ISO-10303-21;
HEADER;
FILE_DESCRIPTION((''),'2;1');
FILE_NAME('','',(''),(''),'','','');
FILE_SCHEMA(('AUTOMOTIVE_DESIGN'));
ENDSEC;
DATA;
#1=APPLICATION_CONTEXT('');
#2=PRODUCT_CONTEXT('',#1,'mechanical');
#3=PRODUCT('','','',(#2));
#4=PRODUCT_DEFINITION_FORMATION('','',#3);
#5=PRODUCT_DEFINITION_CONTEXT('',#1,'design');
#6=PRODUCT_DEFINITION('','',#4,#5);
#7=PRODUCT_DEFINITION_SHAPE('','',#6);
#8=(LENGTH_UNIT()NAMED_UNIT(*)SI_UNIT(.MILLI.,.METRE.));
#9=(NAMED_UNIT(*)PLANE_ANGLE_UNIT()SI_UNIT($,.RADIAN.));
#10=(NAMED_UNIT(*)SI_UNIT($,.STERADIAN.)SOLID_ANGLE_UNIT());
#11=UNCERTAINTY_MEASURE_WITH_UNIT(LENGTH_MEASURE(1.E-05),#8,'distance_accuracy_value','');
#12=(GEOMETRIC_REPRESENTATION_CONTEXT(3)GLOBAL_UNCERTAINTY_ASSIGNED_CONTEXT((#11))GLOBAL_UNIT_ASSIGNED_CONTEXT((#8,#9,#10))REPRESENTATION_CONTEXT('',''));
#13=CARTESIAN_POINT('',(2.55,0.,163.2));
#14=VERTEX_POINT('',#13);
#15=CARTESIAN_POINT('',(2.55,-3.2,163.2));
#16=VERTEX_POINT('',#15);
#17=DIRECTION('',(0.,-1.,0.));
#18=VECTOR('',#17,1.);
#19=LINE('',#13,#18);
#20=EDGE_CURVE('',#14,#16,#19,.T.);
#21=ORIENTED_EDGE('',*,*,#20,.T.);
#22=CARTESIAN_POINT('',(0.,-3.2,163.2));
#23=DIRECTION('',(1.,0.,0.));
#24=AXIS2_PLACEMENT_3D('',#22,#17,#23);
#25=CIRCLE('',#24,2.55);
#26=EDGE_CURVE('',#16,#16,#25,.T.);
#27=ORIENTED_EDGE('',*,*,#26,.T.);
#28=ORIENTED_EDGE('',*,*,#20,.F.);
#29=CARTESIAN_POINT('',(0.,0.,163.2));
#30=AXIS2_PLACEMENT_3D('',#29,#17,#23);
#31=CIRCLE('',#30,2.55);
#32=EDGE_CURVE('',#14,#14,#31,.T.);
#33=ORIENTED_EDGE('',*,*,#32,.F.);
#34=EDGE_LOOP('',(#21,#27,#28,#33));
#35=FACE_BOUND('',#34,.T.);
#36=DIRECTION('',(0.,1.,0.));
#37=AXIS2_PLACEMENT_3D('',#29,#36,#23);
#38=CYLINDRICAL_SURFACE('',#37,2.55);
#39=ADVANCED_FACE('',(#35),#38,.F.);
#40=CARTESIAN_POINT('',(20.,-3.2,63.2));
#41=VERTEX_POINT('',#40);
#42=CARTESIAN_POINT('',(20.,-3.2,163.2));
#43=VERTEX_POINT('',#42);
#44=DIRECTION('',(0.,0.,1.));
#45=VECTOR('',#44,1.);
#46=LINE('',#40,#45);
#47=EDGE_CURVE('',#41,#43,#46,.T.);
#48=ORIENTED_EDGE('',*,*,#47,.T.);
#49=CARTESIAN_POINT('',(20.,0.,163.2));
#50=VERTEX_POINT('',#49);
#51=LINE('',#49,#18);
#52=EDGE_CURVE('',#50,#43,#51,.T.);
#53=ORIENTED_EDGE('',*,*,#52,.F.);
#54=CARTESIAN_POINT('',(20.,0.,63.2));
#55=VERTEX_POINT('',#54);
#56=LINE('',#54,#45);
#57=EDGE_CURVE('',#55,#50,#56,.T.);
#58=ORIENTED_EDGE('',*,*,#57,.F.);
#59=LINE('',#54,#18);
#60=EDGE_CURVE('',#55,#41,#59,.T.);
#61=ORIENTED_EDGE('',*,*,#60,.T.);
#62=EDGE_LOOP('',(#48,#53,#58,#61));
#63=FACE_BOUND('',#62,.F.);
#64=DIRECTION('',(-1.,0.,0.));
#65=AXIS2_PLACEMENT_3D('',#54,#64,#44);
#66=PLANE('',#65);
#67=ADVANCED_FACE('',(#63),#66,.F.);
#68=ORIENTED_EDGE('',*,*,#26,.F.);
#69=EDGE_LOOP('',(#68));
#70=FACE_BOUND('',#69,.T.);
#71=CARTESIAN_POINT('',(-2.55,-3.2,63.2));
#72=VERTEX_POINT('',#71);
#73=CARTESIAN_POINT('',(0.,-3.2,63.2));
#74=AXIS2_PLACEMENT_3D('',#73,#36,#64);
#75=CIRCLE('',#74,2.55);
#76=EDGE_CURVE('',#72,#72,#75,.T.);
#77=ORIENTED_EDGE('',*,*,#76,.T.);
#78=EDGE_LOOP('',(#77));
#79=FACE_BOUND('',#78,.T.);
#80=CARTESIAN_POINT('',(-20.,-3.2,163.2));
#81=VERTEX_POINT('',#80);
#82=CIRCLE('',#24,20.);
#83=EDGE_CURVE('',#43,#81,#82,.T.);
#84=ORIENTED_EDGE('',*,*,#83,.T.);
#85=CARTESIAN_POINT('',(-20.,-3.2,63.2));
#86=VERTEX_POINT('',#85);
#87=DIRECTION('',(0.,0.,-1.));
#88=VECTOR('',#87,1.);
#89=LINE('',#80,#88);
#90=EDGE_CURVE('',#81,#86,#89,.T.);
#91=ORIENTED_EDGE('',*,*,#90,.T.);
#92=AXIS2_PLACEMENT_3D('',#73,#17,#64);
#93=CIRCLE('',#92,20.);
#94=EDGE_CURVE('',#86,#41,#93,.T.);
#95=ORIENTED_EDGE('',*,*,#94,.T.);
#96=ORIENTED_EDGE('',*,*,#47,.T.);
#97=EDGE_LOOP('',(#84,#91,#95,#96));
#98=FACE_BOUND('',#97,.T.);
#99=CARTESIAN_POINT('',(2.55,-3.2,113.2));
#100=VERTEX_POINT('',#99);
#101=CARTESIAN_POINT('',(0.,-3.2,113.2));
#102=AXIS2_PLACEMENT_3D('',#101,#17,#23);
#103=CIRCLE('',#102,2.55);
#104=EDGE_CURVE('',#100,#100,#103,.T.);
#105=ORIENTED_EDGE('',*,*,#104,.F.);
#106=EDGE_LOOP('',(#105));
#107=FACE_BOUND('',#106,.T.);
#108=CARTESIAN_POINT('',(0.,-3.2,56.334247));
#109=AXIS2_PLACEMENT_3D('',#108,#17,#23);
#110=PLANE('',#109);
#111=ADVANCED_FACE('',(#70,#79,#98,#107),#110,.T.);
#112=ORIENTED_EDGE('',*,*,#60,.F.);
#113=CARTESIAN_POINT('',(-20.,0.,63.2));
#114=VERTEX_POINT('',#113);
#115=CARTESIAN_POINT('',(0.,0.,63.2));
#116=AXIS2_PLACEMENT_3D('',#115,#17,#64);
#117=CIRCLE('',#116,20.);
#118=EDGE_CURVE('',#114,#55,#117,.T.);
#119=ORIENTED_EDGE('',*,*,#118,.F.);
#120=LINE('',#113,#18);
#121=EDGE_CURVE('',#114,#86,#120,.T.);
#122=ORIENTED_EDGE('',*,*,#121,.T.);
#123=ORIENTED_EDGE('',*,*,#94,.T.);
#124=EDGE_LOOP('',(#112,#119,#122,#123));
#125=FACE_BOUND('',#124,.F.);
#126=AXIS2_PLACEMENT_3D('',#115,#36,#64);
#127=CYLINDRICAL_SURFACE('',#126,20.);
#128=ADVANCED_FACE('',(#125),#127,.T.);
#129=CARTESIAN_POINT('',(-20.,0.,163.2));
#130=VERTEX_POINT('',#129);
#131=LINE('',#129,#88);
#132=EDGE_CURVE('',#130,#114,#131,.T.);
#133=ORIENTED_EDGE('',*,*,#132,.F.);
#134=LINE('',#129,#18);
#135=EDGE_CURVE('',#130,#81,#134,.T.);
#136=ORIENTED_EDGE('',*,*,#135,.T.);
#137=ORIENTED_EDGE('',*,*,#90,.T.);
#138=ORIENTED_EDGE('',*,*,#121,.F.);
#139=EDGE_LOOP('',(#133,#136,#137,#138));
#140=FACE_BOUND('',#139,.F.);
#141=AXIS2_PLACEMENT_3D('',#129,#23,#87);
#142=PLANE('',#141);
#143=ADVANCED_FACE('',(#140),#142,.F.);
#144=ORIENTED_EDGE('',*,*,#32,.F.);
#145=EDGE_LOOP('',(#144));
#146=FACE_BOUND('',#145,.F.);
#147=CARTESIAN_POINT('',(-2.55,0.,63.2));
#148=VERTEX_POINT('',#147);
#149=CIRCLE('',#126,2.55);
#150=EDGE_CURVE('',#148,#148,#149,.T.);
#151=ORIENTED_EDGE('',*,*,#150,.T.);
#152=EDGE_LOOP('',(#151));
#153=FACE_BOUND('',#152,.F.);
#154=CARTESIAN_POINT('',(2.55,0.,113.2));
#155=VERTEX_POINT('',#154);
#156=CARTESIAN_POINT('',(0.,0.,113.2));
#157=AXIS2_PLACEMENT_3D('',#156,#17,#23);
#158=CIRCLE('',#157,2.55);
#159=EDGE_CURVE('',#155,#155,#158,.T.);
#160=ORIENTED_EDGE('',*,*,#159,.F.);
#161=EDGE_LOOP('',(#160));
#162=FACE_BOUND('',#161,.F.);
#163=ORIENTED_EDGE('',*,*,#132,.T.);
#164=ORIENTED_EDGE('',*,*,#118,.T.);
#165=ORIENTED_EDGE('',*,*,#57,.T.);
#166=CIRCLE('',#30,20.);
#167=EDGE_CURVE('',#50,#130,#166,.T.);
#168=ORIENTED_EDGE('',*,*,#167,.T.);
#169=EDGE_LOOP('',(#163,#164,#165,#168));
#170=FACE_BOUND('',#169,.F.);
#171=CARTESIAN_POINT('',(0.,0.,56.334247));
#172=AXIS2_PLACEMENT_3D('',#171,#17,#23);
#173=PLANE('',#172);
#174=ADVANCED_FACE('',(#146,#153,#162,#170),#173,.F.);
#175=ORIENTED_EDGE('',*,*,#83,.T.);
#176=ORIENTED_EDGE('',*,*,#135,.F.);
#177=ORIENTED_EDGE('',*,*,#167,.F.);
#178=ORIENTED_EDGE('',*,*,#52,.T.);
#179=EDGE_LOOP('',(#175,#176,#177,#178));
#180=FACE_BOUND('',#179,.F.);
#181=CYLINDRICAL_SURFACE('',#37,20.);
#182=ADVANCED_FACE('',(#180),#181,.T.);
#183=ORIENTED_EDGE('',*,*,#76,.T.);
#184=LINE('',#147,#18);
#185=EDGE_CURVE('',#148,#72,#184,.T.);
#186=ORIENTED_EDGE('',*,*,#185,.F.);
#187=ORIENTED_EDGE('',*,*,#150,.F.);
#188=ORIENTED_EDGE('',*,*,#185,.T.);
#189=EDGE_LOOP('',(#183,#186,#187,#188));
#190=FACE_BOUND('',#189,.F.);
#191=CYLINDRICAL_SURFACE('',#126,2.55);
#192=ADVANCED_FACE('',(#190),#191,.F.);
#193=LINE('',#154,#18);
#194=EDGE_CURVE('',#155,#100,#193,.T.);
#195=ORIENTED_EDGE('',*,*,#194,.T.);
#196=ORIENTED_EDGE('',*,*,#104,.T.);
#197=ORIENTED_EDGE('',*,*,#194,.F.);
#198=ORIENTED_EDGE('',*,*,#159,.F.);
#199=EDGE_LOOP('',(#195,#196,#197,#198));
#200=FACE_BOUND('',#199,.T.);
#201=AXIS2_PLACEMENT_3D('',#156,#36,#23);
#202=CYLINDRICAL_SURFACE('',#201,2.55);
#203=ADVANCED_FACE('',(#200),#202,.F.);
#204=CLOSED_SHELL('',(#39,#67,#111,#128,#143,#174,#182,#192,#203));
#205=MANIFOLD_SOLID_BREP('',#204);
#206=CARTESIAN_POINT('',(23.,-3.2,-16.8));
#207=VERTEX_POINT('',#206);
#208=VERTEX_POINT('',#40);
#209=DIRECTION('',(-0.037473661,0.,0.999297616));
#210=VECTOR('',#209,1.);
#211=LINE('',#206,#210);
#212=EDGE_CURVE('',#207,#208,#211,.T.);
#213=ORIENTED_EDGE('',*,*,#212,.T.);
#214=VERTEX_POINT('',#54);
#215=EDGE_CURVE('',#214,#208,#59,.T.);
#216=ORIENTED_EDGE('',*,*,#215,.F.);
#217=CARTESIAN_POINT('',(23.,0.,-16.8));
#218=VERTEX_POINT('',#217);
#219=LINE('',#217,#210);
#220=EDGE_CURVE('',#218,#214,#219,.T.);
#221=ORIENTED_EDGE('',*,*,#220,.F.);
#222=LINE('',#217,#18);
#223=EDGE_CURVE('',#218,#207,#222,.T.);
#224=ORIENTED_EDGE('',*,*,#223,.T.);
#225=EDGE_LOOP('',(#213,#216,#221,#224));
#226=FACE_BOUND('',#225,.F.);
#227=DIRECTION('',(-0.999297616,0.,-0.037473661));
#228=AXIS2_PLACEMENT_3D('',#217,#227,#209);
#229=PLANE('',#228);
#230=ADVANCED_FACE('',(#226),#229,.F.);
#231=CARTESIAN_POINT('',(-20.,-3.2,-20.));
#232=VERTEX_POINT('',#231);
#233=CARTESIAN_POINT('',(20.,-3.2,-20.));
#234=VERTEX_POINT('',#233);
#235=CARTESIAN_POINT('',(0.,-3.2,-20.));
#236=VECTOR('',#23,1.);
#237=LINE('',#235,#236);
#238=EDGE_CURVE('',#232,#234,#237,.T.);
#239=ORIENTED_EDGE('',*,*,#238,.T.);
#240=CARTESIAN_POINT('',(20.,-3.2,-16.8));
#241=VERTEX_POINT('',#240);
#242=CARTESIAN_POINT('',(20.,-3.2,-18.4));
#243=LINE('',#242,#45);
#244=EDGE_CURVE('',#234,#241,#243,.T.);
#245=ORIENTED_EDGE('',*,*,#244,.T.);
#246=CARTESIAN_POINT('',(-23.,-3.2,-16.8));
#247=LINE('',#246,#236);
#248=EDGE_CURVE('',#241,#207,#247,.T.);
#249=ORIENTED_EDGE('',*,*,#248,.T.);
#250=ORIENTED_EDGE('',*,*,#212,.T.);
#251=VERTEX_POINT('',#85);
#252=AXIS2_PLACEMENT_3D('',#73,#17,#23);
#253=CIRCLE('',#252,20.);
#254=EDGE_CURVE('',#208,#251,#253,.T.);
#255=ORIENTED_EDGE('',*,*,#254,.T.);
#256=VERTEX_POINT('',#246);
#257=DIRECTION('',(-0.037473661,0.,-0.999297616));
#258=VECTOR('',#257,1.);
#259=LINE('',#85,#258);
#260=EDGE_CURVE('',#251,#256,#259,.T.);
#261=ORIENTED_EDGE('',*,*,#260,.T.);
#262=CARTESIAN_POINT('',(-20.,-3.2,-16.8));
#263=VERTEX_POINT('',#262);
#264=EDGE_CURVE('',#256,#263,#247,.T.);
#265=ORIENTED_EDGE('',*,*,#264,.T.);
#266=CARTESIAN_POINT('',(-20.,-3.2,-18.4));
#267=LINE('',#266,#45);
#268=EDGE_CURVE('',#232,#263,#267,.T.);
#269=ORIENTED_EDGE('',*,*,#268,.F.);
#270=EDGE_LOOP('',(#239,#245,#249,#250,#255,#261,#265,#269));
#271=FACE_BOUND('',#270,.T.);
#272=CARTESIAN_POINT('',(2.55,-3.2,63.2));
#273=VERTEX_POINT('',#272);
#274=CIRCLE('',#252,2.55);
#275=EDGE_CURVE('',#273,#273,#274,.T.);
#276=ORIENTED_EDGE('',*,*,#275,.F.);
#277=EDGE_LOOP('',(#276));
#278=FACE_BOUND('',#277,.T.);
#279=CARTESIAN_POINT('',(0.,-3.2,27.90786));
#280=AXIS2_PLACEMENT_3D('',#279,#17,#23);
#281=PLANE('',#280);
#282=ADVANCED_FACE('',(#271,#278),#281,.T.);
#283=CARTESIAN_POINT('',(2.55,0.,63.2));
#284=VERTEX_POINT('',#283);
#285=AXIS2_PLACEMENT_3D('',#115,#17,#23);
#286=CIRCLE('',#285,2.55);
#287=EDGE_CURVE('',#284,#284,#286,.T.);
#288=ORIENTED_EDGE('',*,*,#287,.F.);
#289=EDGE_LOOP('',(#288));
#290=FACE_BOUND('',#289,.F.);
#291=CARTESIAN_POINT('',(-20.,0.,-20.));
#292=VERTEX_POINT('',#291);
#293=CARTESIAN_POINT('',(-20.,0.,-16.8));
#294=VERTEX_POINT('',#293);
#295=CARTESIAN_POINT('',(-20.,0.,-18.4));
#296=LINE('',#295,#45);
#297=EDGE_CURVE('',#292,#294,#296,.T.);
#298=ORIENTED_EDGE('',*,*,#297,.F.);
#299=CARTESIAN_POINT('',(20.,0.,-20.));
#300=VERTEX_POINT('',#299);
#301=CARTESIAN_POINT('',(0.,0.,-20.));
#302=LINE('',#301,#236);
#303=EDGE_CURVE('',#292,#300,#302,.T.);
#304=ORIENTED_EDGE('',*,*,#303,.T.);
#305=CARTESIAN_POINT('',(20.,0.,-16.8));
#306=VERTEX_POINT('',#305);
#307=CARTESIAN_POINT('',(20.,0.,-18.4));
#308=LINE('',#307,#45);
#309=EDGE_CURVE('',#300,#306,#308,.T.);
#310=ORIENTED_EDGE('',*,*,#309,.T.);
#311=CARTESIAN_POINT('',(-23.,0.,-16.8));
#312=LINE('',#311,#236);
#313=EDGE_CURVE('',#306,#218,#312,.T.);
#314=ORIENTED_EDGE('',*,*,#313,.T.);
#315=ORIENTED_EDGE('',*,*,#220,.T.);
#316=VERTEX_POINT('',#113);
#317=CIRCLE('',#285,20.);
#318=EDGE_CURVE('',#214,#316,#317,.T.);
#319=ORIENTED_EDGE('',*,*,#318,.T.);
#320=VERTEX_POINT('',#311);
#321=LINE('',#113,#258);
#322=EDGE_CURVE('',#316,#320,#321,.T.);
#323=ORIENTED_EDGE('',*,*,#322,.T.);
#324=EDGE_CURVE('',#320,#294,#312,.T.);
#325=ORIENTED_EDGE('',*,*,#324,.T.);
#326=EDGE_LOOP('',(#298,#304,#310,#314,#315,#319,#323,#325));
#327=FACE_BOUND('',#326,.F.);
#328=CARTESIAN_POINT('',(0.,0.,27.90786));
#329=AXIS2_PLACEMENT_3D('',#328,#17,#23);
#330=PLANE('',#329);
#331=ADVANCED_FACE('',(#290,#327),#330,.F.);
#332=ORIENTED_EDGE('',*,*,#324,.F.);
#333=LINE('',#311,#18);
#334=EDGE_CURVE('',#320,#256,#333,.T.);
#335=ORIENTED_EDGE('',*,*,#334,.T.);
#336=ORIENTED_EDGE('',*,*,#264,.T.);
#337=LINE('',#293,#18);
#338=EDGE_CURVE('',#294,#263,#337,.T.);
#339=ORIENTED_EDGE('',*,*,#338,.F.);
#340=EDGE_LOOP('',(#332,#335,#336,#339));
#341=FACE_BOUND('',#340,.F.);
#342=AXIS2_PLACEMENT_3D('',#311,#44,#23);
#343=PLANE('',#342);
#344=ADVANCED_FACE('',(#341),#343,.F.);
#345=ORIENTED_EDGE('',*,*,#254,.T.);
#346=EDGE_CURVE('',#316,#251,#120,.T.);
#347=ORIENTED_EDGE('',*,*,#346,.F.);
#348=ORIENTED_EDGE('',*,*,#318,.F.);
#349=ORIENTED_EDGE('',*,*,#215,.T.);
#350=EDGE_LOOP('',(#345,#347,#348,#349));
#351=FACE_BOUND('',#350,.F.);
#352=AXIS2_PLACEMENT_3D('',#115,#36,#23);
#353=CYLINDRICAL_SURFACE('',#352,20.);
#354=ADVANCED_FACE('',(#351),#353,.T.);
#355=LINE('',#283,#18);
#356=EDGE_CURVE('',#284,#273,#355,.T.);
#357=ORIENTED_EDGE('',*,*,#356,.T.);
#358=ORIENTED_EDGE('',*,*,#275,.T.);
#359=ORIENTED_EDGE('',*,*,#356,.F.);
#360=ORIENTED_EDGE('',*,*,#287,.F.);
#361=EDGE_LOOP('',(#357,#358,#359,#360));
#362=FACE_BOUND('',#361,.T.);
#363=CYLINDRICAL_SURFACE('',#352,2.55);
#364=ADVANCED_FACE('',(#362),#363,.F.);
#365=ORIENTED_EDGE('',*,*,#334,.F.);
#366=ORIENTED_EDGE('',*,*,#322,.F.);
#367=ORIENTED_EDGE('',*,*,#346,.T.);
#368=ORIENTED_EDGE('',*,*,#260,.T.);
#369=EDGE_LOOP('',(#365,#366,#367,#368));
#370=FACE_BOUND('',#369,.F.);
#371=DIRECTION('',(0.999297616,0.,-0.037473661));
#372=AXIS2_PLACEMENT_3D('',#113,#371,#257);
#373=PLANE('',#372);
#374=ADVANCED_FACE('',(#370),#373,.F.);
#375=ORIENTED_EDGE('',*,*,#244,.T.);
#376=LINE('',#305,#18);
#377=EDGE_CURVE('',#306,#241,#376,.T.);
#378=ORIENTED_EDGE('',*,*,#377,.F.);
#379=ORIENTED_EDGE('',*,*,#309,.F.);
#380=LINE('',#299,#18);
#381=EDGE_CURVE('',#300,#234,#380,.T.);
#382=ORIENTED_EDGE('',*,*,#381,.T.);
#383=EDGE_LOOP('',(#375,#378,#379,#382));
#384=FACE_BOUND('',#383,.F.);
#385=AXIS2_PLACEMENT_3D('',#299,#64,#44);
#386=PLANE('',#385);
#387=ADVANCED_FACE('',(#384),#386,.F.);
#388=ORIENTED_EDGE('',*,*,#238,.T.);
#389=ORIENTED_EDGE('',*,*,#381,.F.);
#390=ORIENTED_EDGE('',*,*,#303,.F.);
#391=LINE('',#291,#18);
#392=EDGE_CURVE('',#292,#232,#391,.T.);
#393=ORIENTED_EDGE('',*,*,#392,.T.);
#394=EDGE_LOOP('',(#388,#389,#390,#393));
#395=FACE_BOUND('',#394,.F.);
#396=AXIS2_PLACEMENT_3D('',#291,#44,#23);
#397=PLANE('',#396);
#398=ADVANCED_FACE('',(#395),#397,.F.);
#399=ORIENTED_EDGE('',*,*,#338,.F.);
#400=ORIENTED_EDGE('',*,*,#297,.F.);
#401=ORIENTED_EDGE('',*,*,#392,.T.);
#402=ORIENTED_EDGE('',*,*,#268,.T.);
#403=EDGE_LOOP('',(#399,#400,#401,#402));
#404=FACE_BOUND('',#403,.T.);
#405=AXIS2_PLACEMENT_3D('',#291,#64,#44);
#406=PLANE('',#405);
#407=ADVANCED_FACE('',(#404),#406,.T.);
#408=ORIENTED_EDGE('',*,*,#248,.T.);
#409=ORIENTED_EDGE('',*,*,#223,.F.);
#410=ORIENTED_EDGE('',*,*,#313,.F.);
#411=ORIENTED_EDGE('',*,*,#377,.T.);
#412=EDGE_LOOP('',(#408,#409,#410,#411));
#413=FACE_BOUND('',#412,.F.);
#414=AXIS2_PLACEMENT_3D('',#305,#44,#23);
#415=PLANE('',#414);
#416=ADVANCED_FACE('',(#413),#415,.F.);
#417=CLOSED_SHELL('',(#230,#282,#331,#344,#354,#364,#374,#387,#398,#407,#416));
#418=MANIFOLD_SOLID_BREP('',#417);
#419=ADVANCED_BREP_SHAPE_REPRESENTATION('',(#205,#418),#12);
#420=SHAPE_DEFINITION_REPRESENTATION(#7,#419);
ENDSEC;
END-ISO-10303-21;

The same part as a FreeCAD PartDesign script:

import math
import FreeCAD as App
import Part
import Sketcher

doc = App.newDocument("Part")
params = doc.addObject("Spreadsheet::Sheet", "Params")
for row, (alias, value) in enumerate([
    ("sketch1_radius", "20 mm"),
    ("sketch1_diameter", "5.1 mm"),
    ("sketch1_width", "3 mm"),
    ("sketch1_height", "3.2 mm"),
    ("pad1_length", "3.2 mm"),
    ("sketch2_radius", "20 mm"),
    ("sketch2_diameter", "5.1 mm"),
    ("sketch2_height", "100 mm"),
    ("pad2_length", "3.2 mm"),
], start=1):
    params.set(f"A{row}", alias)
    params.set(f"B{row}", "=" + value)
    params.setAlias(f"B{row}", alias)

body = doc.addObject("PartDesign::Body", "Body")

sketch1 = body.newObject("Sketcher::SketchObject", "Sketch")
sketch1.AttachmentSupport = (doc.getObject("XZ_Plane"), [""])
sketch1.MapMode = "FlatFace"
sketch1.addGeometry([
    Part.LineSegment(App.Vector(-23, -16.8, 0), App.Vector(-20, -16.8, 0)),
    Part.LineSegment(App.Vector(-20, -16.8, 0), App.Vector(-20, -20, 0)),
    Part.LineSegment(App.Vector(-20, -20, 0), App.Vector(20, -20, 0)),
    Part.LineSegment(App.Vector(20, -20, 0), App.Vector(20, -16.8, 0)),
    Part.LineSegment(App.Vector(20, -16.8, 0), App.Vector(23, -16.8, 0)),
    Part.LineSegment(App.Vector(23, -16.8, 0), App.Vector(20, 63.2, 0)),
    Part.ArcOfCircle(Part.Circle(App.Vector(0, 63.2, 0), App.Vector(0, 0, 1), 20), math.radians(0), math.radians(180)),
    Part.LineSegment(App.Vector(-20, 63.2, 0), App.Vector(-23, -16.8, 0)),
    Part.Circle(App.Vector(0, 63.2, 0), App.Vector(0, 0, 1), 2.5),
], False)
sketch1.addConstraint([
    Sketcher.Constraint("Coincident", 0, 2, 1, 1),
    Sketcher.Constraint("Coincident", 1, 2, 2, 1),
    Sketcher.Constraint("Coincident", 2, 2, 3, 1),
    Sketcher.Constraint("Coincident", 3, 2, 4, 1),
    Sketcher.Constraint("Coincident", 4, 2, 5, 1),
    Sketcher.Constraint("Coincident", 5, 2, 6, 1),
    Sketcher.Constraint("Coincident", 6, 2, 7, 1),
    Sketcher.Constraint("Coincident", 7, 2, 0, 1),
    Sketcher.Constraint("Horizontal", 0),
    Sketcher.Constraint("Vertical", 1),
    Sketcher.Constraint("Horizontal", 2),
    Sketcher.Constraint("Vertical", 3),
    Sketcher.Constraint("Horizontal", 4),
    Sketcher.Constraint("Coincident", 8, 3, 6, 3),
    Sketcher.Constraint("Symmetric", 0, 2, 3, 2, -2),
    Sketcher.Constraint("Symmetric", 5, 2, 6, 2, -2),
    Sketcher.Constraint("Horizontal", 8, 3, 5, 2),
    Sketcher.Constraint("Vertical", 3, 2, 5, 2),
    Sketcher.Constraint("Equal", 0, 4),
    Sketcher.Constraint("Radius", 6, 20.0),
    Sketcher.Constraint("Diameter", 8, 5.1),
    Sketcher.Constraint("DistanceX", 0, 1, 0, 2, 3.0),
    Sketcher.Constraint("DistanceY", 1, 2, 1, 1, 3.2),
    Sketcher.Constraint("DistanceY", 1, 2, -1, 1, 20.0),
    Sketcher.Constraint("DistanceY", 0, 2, 6, 3, 80.0),
])
sketch1.setExpression("Constraints[19]", "Params.sketch1_radius")
sketch1.setExpression("Constraints[20]", "Params.sketch1_diameter")
sketch1.setExpression("Constraints[21]", "Params.sketch1_width")
sketch1.setExpression("Constraints[22]", "Params.sketch1_height")
pad1 = body.newObject("PartDesign::Pad", "Pad")
pad1.Profile = sketch1
pad1.setExpression("Length", "Params.pad1_length")
body2 = doc.addObject("PartDesign::Body", "Body001")

sketch2 = body2.newObject("Sketcher::SketchObject", "Sketch001")
sketch2.AttachmentSupport = (doc.getObject("XZ_Plane001"), [""])
sketch2.MapMode = "FlatFace"
sketch2.addGeometry([
    Part.ArcOfCircle(Part.Circle(App.Vector(0, 63.2, 0), App.Vector(0, 0, 1), 20), math.radians(180), math.radians(360)),
    Part.LineSegment(App.Vector(20, 63.2, 0), App.Vector(20, 163.2, 0)),
    Part.ArcOfCircle(Part.Circle(App.Vector(0, 163.2, 0), App.Vector(0, 0, 1), 20), math.radians(0), math.radians(180)),
    Part.LineSegment(App.Vector(-20, 163.2, 0), App.Vector(-20, 63.2, 0)),
    Part.Circle(App.Vector(0, 63.2, 0), App.Vector(0, 0, 1), 2.5),
    Part.Circle(App.Vector(0, 113.2, 0), App.Vector(0, 0, 1), 2.5),
    Part.Circle(App.Vector(0, 163.2, 0), App.Vector(0, 0, 1), 2.5),
], False)
sketch2.addConstraint([
    Sketcher.Constraint("Tangent", 0, 2, 1, 1),
    Sketcher.Constraint("Tangent", 1, 2, 2, 1),
    Sketcher.Constraint("Tangent", 2, 2, 3, 1),
    Sketcher.Constraint("Tangent", 3, 2, 0, 1),
    Sketcher.Constraint("Vertical", 1),
    Sketcher.Constraint("Vertical", 3),
    Sketcher.Constraint("Coincident", 4, 3, 0, 3),
    Sketcher.Constraint("Coincident", 6, 3, 2, 3),
    Sketcher.Constraint("Equal", 4, 5),
    Sketcher.Constraint("Equal", 5, 6),
    Sketcher.Constraint("PointOnObject", 0, 3, -2),
    Sketcher.Constraint("PointOnObject", 5, 3, -2),
    Sketcher.Constraint("Radius", 0, 20.0),
    Sketcher.Constraint("Diameter", 4, 5.1),
    Sketcher.Constraint("DistanceY", 1, 1, 1, 2, 100.0),
    Sketcher.Constraint("DistanceY", 5, 3, 2, 3, 50.0),
    Sketcher.Constraint("DistanceY", -1, 1, 0, 3, 63.2),
])
sketch2.setExpression("Constraints[12]", "Params.sketch2_radius")
sketch2.setExpression("Constraints[13]", "Params.sketch2_diameter")
sketch2.setExpression("Constraints[14]", "Params.sketch2_height")
pad2 = body2.newObject("PartDesign::Pad", "Pad001")
pad2.Profile = sketch2
pad2.setExpression("Length", "Params.pad2_length")

doc.recompute()
